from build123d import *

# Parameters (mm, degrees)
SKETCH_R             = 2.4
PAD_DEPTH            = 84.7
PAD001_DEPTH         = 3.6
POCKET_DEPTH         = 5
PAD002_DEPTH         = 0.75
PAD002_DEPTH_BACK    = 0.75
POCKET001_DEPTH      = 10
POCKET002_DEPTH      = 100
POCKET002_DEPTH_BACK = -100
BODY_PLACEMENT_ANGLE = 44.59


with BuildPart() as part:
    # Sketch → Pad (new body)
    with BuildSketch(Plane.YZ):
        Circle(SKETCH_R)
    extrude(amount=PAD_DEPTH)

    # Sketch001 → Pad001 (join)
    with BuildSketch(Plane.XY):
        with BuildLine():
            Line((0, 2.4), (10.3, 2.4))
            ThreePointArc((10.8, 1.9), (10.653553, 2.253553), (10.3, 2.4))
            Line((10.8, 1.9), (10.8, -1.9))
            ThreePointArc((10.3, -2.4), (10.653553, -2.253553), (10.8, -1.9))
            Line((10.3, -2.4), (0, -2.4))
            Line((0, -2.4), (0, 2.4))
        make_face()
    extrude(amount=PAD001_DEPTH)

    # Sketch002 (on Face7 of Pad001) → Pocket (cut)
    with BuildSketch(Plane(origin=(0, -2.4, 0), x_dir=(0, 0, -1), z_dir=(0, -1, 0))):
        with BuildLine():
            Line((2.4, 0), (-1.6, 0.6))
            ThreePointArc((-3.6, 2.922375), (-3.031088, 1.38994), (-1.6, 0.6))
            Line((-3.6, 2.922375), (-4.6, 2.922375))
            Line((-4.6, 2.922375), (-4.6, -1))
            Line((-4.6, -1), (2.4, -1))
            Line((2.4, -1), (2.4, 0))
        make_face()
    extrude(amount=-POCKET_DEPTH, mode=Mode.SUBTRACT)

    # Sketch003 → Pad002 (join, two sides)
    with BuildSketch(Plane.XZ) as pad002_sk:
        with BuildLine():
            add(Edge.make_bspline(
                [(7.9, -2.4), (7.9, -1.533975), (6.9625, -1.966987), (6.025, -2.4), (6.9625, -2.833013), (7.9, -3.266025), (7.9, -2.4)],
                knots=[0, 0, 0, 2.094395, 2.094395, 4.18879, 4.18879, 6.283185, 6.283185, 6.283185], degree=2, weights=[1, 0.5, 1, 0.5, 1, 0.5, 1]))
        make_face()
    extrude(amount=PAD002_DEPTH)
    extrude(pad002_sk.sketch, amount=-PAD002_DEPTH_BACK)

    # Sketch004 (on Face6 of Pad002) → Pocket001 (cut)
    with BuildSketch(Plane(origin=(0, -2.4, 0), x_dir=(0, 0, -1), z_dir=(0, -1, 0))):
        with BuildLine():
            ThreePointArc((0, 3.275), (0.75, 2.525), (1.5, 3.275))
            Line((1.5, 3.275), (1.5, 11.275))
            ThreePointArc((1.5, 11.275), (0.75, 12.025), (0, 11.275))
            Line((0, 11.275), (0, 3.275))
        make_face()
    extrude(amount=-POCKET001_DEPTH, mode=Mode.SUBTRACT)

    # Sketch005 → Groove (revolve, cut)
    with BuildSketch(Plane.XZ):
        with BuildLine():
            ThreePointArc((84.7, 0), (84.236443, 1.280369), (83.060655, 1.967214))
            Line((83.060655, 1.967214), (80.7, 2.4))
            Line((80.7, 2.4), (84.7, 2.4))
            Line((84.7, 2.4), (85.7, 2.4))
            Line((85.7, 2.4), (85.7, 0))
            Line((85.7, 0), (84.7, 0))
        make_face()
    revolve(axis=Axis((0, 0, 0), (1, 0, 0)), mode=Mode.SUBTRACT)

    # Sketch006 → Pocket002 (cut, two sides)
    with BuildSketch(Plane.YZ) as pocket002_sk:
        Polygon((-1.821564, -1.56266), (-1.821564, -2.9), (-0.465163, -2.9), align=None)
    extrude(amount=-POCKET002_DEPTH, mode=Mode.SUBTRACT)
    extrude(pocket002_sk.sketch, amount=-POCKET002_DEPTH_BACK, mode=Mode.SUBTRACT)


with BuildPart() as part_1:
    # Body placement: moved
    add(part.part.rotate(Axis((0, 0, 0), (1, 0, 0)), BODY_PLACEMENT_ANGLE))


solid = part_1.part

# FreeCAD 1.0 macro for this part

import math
import FreeCAD as App
import Part
import Sketcher

V = App.Vector

doc = App.newDocument("Part")
body = doc.addObject("PartDesign::Body", "Body")

sketch1 = body.newObject("Sketcher::SketchObject", "Sketch")
sketch1.AttachmentSupport = (doc.getObject("YZ_Plane"), [""])
sketch1.MapMode = "FlatFace"
sketch1.addGeometry(Part.Circle(V(0, 0, 0), V(0, 0, 1), 2.4), False)
sketch1.addConstraint(Sketcher.Constraint("Coincident", 0, 3, -1, 1))
sketch1.addConstraint(Sketcher.Constraint("Diameter", 0, 4.8))
pad1 = body.newObject("PartDesign::Pad", "Pad")
pad1.Profile = sketch1
pad1.Length = 84.7

sketch2 = body.newObject("Sketcher::SketchObject", "Sketch001")
sketch2.AttachmentSupport = (doc.getObject("XY_Plane"), [""])
sketch2.MapMode = "FlatFace"
sketch2.addGeometry(Part.LineSegment(V(10.3, 2.4, 0), V(0, 2.4, 0)), False)
sketch2.addGeometry(Part.LineSegment(V(0, 2.4, 0), V(0, -2.4, 0)), False)
sketch2.addGeometry(Part.LineSegment(V(0, -2.4, 0), V(10.3, -2.4, 0)), False)
sketch2.addGeometry(Part.ArcOfCircle(Part.Circle(V(10.3, -1.9, 0), V(0, 0, 1), 0.5), math.radians(-90), math.radians(0)), False)
sketch2.addGeometry(Part.LineSegment(V(10.8, -1.9, 0), V(10.8, 1.9, 0)), False)
sketch2.addGeometry(Part.ArcOfCircle(Part.Circle(V(10.3, 1.9, 0), V(0, 0, 1), 0.5), math.radians(0), math.radians(90)), False)
sketch2.addConstraint(Sketcher.Constraint("Coincident", 0, 2, 1, 1))
sketch2.addConstraint(Sketcher.Constraint("Coincident", 1, 2, 2, 1))
sketch2.addConstraint(Sketcher.Constraint("Coincident", 2, 2, 3, 1))
sketch2.addConstraint(Sketcher.Constraint("Coincident", 3, 2, 4, 1))
sketch2.addConstraint(Sketcher.Constraint("Coincident", 4, 2, 5, 1))
sketch2.addConstraint(Sketcher.Constraint("Coincident", 5, 2, 0, 1))
sketch2.addConstraint(Sketcher.Constraint("Horizontal", 0))
sketch2.addConstraint(Sketcher.Constraint("Vertical", 1))
sketch2.addConstraint(Sketcher.Constraint("Horizontal", 2))
sketch2.addConstraint(Sketcher.Constraint("Vertical", 4))
sketch2.addConstraint(Sketcher.Constraint("Equal", 3, 5))
sketch2.addConstraint(Sketcher.Constraint("Symmetric", 0, 2, 1, 2, -1, 1))
sketch2.addConstraint(Sketcher.Constraint("Horizontal", 5, 3, 4, 2))
sketch2.addConstraint(Sketcher.Constraint("Vertical", 5, 3, 2, 2))
sketch2.addConstraint(Sketcher.Constraint("Vertical", 2, 2, 5, 2))
sketch2.addConstraint(Sketcher.Constraint("Radius", 3, 0.500001))
sketch2.addConstraint(Sketcher.Constraint("DistanceX", 0, 2, 0, 1, 10.3))
sketch2.addConstraint(Sketcher.Constraint("DistanceY", 1, 2, 1, 1, 4.8))
sketch2.addConstraint(Sketcher.Constraint("DistanceY", 4, 1, 4, 2, 3.8))
pad2 = body.newObject("PartDesign::Pad", "Pad001")
pad2.Profile = sketch2
pad2.Length = 3.6

sketch3 = body.newObject("Sketcher::SketchObject", "Sketch002")
sketch3.AttachmentSupport = (doc.getObject("XZ_Plane"), [""])
sketch3.MapMode = "FlatFace"
sketch3.AttachmentOffset = App.Placement(V(0, 0, 2.4), App.Rotation())
sketch3.addGeometry(Part.LineSegment(V(0, -2.4, 0), V(0.6, 1.6, 0)), False)
sketch3.addGeometry(Part.ArcOfCircle(Part.Circle(V(2.9, 1.3, 0), V(0, 0, 1), 2.3), math.radians(90), math.radians(171)), False)
sketch3.addGeometry(Part.LineSegment(V(2.9, 3.6, 0), V(2.9, 4.6, 0)), False)
sketch3.addGeometry(Part.LineSegment(V(2.9, 4.6, 0), V(-1, 4.6, 0)), False)
sketch3.addGeometry(Part.LineSegment(V(-1, 4.6, 0), V(-1, -2.4, 0)), False)
sketch3.addGeometry(Part.LineSegment(V(-1, -2.4, 0), V(0, -2.4, 0)), False)
sketch3.addConstraint(Sketcher.Constraint("Tangent", 0, 2, 1, 2))
sketch3.addConstraint(Sketcher.Constraint("Coincident", 1, 1, 2, 1))
sketch3.addConstraint(Sketcher.Constraint("Coincident", 2, 2, 3, 1))
sketch3.addConstraint(Sketcher.Constraint("Coincident", 3, 2, 4, 1))
sketch3.addConstraint(Sketcher.Constraint("Coincident", 4, 2, 5, 1))
sketch3.addConstraint(Sketcher.Constraint("Coincident", 5, 2, 0, 1))
sketch3.addConstraint(Sketcher.Constraint("Vertical", 2))
sketch3.addConstraint(Sketcher.Constraint("Horizontal", 3))
sketch3.addConstraint(Sketcher.Constraint("Vertical", 4))
sketch3.addConstraint(Sketcher.Constraint("Horizontal", 5))
sketch3.addConstraint(Sketcher.Constraint("PointOnObject", 5, 2, -2))
sketch3.addConstraint(Sketcher.Constraint("Equal", 5, 2))
sketch3.addConstraint(Sketcher.Constraint("DistanceX", 5, 1, 5, 2, 1.0))
sketch3.addConstraint(Sketcher.Constraint("DistanceY", 4, 2, 4, 1, 7.0))
sketch3.addConstraint(Sketcher.Constraint("DistanceY", 0, 2, 1, 1, 2.0))
sketch3.addConstraint(Sketcher.Constraint("DistanceX", -1, 1, 0, 2, 0.6))
sketch3.addConstraint(Sketcher.Constraint("DistanceY", -1, 1, 0, 2, 1.6))
sketch3.addConstraint(Sketcher.Constraint("DistanceX", 3, 2, 3, 1, 3.922375))
pocket1 = body.newObject("PartDesign::Pocket", "Pocket")
pocket1.Profile = sketch3
pocket1.Length = 5

sketch4 = body.newObject("Sketcher::SketchObject", "Sketch003")
sketch4.AttachmentSupport = (doc.getObject("XZ_Plane"), [""])
sketch4.MapMode = "FlatFace"
sketch4.addGeometry(Part.BSplineCurve([V(7.9, -2.4, 0), V(7.9, -1.533975, 0), V(6.9625, -1.966987, 0), V(6.025, -2.4, 0), V(6.9625, -2.833013, 0), V(7.9, -3.266025, 0), V(7.9, -2.4, 0)], [3, 2, 2, 3], [0, 2.094395, 4.18879, 6.283185], False, 2, [1, 0.5, 1, 0.5, 1, 0.5, 1], False), False)
sketch4.addConstraint(Sketcher.Constraint("Block", 0))
pad3 = body.newObject("PartDesign::Pad", "Pad002")
pad3.Profile = sketch4
pad3.Type = "TwoLengths"
pad3.Length = 0.75
pad3.Length2 = 0.75

sketch5 = body.newObject("Sketcher::SketchObject", "Sketch004")
sketch5.AttachmentSupport = (doc.getObject("XZ_Plane"), [""])
sketch5.MapMode = "FlatFace"
sketch5.AttachmentOffset = App.Placement(V(0, 0, 2.4), App.Rotation())
sketch5.addGeometry(Part.ArcOfCircle(Part.Circle(V(3.3, -0.8, 0), V(0, 0, 1), 0.8), math.radians(90), math.radians(270)), False)
sketch5.addGeometry(Part.LineSegment(V(3.3, -1.5, 0), V(11.3, -1.5, 0)), False)
sketch5.addGeometry(Part.ArcOfCircle(Part.Circle(V(11.3, -0.8, 0), V(0, 0, 1), 0.8), math.radians(-90), math.radians(90)), False)
sketch5.addGeometry(Part.LineSegment(V(11.3, 0, 0), V(3.3, 0, 0)), False)
sketch5.addConstraint(Sketcher.Constraint("Tangent", 0, 2, 1, 1))
sketch5.addConstraint(Sketcher.Constraint("Tangent", 1, 2, 2, 1))
sketch5.addConstraint(Sketcher.Constraint("Tangent", 2, 2, 3, 1))
sketch5.addConstraint(Sketcher.Constraint("Tangent", 3, 2, 0, 1))
sketch5.addConstraint(Sketcher.Constraint("Horizontal", 1))
sketch5.addConstraint(Sketcher.Constraint("Horizontal", 3))
sketch5.addConstraint(Sketcher.Constraint("PointOnObject", 2, 2, -1))
sketch5.addConstraint(Sketcher.Constraint("DistanceX", 1, 1, 1, 2, 8.0))
sketch5.addConstraint(Sketcher.Constraint("Radius", 0, 0.75))
sketch5.addConstraint(Sketcher.Constraint("DistanceX", -1, 1, 0, 3, 3.275))
pocket2 = body.newObject("PartDesign::Pocket", "Pocket001")
pocket2.Profile = sketch5
pocket2.Length = 10

sketch6 = body.newObject("Sketcher::SketchObject", "Sketch005")
sketch6.AttachmentSupport = (doc.getObject("XZ_Plane"), [""])
sketch6.MapMode = "FlatFace"
sketch6.addGeometry(Part.ArcOfCircle(Part.Circle(V(82.7, 0, 0), V(0, 0, 1), 2), math.radians(0), math.radians(80)), False)
sketch6.addGeometry(Part.LineSegment(V(84.7, 0, 0), V(85.7, 0, 0)), False)
sketch6.addGeometry(Part.LineSegment(V(85.7, 0, 0), V(85.7, 2.4, 0)), False)
sketch6.addGeometry(Part.LineSegment(V(85.7, 2.4, 0), V(80.7, 2.4, 0)), False)
sketch6.addGeometry(Part.LineSegment(V(80.7, 2.4, 0), V(83.1, 2, 0)), False)
sketch6.addConstraint(Sketcher.Constraint("Coincident", 0, 1, 1, 1))
sketch6.addConstraint(Sketcher.Constraint("Coincident", 1, 2, 2, 1))
sketch6.addConstraint(Sketcher.Constraint("Coincident", 2, 2, 3, 1))
sketch6.addConstraint(Sketcher.Constraint("Coincident", 3, 2, 4, 1))
sketch6.addConstraint(Sketcher.Constraint("Tangent", 4, 2, 0, 2))
sketch6.addConstraint(Sketcher.Constraint("Horizontal", 1))
sketch6.addConstraint(Sketcher.Constraint("Vertical", 2))
sketch6.addConstraint(Sketcher.Constraint("Horizontal", 3))
sketch6.addConstraint(Sketcher.Constraint("PointOnObject", 0, 3, -1))
sketch6.addConstraint(Sketcher.Constraint("PointOnObject", 0, 1, -1))
sketch6.addConstraint(Sketcher.Constraint("Radius", 0, 2.0))
sketch6.addConstraint(Sketcher.Constraint("DistanceX", 1, 1, 1, 2, 1.0))
sketch6.addConstraint(Sketcher.Constraint("DistanceX", 3, 2, 3, 1, 5.0))
sketch6.addConstraint(Sketcher.Constraint("DistanceY", 2, 1, 2, 2, 2.4))
sketch6.addConstraint(Sketcher.Constraint("DistanceX", -1, 1, 0, 3, 82.7))
groove = body.newObject("PartDesign::Groove", "Groove")
groove.Profile = sketch6
groove.ReferenceAxis = (sketch6, ["H_Axis"])
groove.Angle = 360

sketch7 = body.newObject("Sketcher::SketchObject", "Sketch006")
sketch7.AttachmentSupport = (doc.getObject("YZ_Plane"), [""])
sketch7.MapMode = "FlatFace"
sketch7.addGeometry(Part.LineSegment(V(-1.8, -1.6, 0), V(-1.8, -2.9, 0)), False)
sketch7.addGeometry(Part.LineSegment(V(-1.8, -2.9, 0), V(-0.5, -2.9, 0)), False)
sketch7.addGeometry(Part.LineSegment(V(-0.5, -2.9, 0), V(-1.8, -1.6, 0)), False)
sketch7.addConstraint(Sketcher.Constraint("Coincident", 0, 2, 1, 1))
sketch7.addConstraint(Sketcher.Constraint("Coincident", 1, 2, 2, 1))
sketch7.addConstraint(Sketcher.Constraint("Coincident", 2, 2, 0, 1))
sketch7.addConstraint(Sketcher.Constraint("Vertical", 0))
sketch7.addConstraint(Sketcher.Constraint("Horizontal", 1))
sketch7.addConstraint(Sketcher.Constraint("DistanceY", 0, 2, -1, 1, 2.9))
sketch7.addConstraint(Sketcher.Constraint("DistanceX", 1, 1, 1, 2, 1.356401))
sketch7.addConstraint(Sketcher.Constraint("DistanceY", 0, 2, 0, 1, 1.33734))
sketch7.addConstraint(Sketcher.Constraint("DistanceX", 0, 2, -1, 1, 1.821564))
pocket3 = body.newObject("PartDesign::Pocket", "Pocket002")
pocket3.Profile = sketch7
pocket3.Type = "ThroughAll"
pocket3.Midplane = True
body2 = doc.addObject("PartDesign::Body", "Body001")
doc.recompute()

body.Placement = App.Placement(V(0, 0, 0), App.Rotation(V(1, 0, 0), 44.59))
boolean = body2.newObject("PartDesign::Boolean", "Boolean")
boolean.Type = "Fuse"
boolean.addObjects([body])

doc.recompute()
